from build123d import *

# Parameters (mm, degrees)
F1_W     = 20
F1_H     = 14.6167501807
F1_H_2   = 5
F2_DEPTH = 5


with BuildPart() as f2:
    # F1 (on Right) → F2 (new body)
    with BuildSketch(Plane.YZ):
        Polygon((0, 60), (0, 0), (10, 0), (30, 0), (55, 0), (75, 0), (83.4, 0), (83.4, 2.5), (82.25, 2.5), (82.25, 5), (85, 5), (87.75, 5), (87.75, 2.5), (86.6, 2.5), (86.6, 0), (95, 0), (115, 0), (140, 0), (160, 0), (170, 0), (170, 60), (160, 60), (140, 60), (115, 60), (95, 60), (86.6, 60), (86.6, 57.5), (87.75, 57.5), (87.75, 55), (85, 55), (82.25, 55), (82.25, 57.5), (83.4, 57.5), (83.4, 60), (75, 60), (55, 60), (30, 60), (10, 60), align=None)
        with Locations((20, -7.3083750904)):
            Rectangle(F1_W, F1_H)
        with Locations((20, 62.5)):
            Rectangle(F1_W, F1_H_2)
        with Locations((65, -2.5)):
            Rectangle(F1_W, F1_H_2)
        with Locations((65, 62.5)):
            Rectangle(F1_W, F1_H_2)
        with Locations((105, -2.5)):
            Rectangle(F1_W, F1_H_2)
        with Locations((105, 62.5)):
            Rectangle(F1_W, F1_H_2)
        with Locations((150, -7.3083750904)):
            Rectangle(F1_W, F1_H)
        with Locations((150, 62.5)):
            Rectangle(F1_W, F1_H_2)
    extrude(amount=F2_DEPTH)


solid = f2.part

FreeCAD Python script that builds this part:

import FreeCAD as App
import Part
import Sketcher
from FreeCAD import Vector
Q = App.Units.Quantity

doc = App.newDocument("Part")
body = doc.addObject("PartDesign::Body", "Body")

# Sketch on YZ plane
sketch1 = body.newObject("Sketcher::SketchObject", "Sketch")
sketch1.AttachmentSupport = (doc.getObject("YZ_Plane"), [""])
sketch1.MapMode = "FlatFace"
sketch1.addGeometry(Part.LineSegment(Vector(0, 60, 0), Vector(0, 0, 0)), False)
sketch1.addGeometry(Part.LineSegment(Vector(0, 0, 0), Vector(10, 0, 0)), False)
sketch1.addGeometry(Part.LineSegment(Vector(10, 0, 0), Vector(10, -14.6, 0)), False)
sketch1.addGeometry(Part.LineSegment(Vector(10, -14.6, 0), Vector(30, -14.6, 0)), False)
sketch1.addGeometry(Part.LineSegment(Vector(30, -14.6, 0), Vector(30, 0, 0)), False)
sketch1.addGeometry(Part.LineSegment(Vector(30, 0, 0), Vector(55, 0, 0)), False)
sketch1.addGeometry(Part.LineSegment(Vector(55, 0, 0), Vector(55, -5, 0)), False)
sketch1.addGeometry(Part.LineSegment(Vector(55, -5, 0), Vector(75, -5, 0)), False)
sketch1.addGeometry(Part.LineSegment(Vector(75, -5, 0), Vector(75, 0, 0)), False)
sketch1.addGeometry(Part.LineSegment(Vector(75, 0, 0), Vector(83.4, 0, 0)), False)
sketch1.addGeometry(Part.LineSegment(Vector(83.4, 0, 0), Vector(83.4, 2.5, 0)), False)
sketch1.addGeometry(Part.LineSegment(Vector(83.4, 2.5, 0), Vector(82.2, 2.5, 0)), False)
sketch1.addGeometry(Part.LineSegment(Vector(82.2, 2.5, 0), Vector(82.2, 5, 0)), False)
sketch1.addGeometry(Part.LineSegment(Vector(82.2, 5, 0), Vector(87.8, 5, 0)), False)
sketch1.addGeometry(Part.LineSegment(Vector(87.8, 5, 0), Vector(87.8, 2.5, 0)), False)
sketch1.addGeometry(Part.LineSegment(Vector(87.8, 2.5, 0), Vector(86.6, 2.5, 0)), False)
sketch1.addGeometry(Part.LineSegment(Vector(86.6, 2.5, 0), Vector(86.6, 0, 0)), False)
sketch1.addGeometry(Part.LineSegment(Vector(86.6, 0, 0), Vector(95, 0, 0)), False)
sketch1.addGeometry(Part.LineSegment(Vector(95, 0, 0), Vector(95, -5, 0)), False)
sketch1.addGeometry(Part.LineSegment(Vector(95, -5, 0), Vector(115, -5, 0)), False)
sketch1.addGeometry(Part.LineSegment(Vector(115, -5, 0), Vector(115, 0, 0)), False)
sketch1.addGeometry(Part.LineSegment(Vector(115, 0, 0), Vector(140, 0, 0)), False)
sketch1.addGeometry(Part.LineSegment(Vector(140, 0, 0), Vector(140, -14.6, 0)), False)
sketch1.addGeometry(Part.LineSegment(Vector(140, -14.6, 0), Vector(160, -14.6, 0)), False)
sketch1.addGeometry(Part.LineSegment(Vector(160, -14.6, 0), Vector(160, 0, 0)), False)
sketch1.addGeometry(Part.LineSegment(Vector(160, 0, 0), Vector(170, 0, 0)), False)
sketch1.addGeometry(Part.LineSegment(Vector(170, 0, 0), Vector(170, 60, 0)), False)
sketch1.addGeometry(Part.LineSegment(Vector(170, 60, 0), Vector(160, 60, 0)), False)
sketch1.addGeometry(Part.LineSegment(Vector(160, 60, 0), Vector(160, 65, 0)), False)
sketch1.addGeometry(Part.LineSegment(Vector(160, 65, 0), Vector(140, 65, 0)), False)
sketch1.addGeometry(Part.LineSegment(Vector(140, 65, 0), Vector(140, 60, 0)), False)
sketch1.addGeometry(Part.LineSegment(Vector(140, 60, 0), Vector(115, 60, 0)), False)
sketch1.addGeometry(Part.LineSegment(Vector(115, 60, 0), Vector(115, 65, 0)), False)
sketch1.addGeometry(Part.LineSegment(Vector(115, 65, 0), Vector(95, 65, 0)), False)
sketch1.addGeometry(Part.LineSegment(Vector(95, 65, 0), Vector(95, 60, 0)), False)
sketch1.addGeometry(Part.LineSegment(Vector(95, 60, 0), Vector(86.6, 60, 0)), False)
sketch1.addGeometry(Part.LineSegment(Vector(86.6, 60, 0), Vector(86.6, 57.5, 0)), False)
sketch1.addGeometry(Part.LineSegment(Vector(86.6, 57.5, 0), Vector(87.8, 57.5, 0)), False)
sketch1.addGeometry(Part.LineSegment(Vector(87.8, 57.5, 0), Vector(87.8, 55, 0)), False)
sketch1.addGeometry(Part.LineSegment(Vector(87.8, 55, 0), Vector(82.2, 55, 0)), False)
sketch1.addGeometry(Part.LineSegment(Vector(82.2, 55, 0), Vector(82.2, 57.5, 0)), False)
sketch1.addGeometry(Part.LineSegment(Vector(82.2, 57.5, 0), Vector(83.4, 57.5, 0)), False)
sketch1.addGeometry(Part.LineSegment(Vector(83.4, 57.5, 0), Vector(83.4, 60, 0)), False)
sketch1.addGeometry(Part.LineSegment(Vector(83.4, 60, 0), Vector(75, 60, 0)), False)
sketch1.addGeometry(Part.LineSegment(Vector(75, 60, 0), Vector(75, 65, 0)), False)
sketch1.addGeometry(Part.LineSegment(Vector(75, 65, 0), Vector(55, 65, 0)), False)
sketch1.addGeometry(Part.LineSegment(Vector(55, 65, 0), Vector(55, 60, 0)), False)
sketch1.addGeometry(Part.LineSegment(Vector(55, 60, 0), Vector(30, 60, 0)), False)
sketch1.addGeometry(Part.LineSegment(Vector(30, 60, 0), Vector(30, 65, 0)), False)
sketch1.addGeometry(Part.LineSegment(Vector(30, 65, 0), Vector(10, 65, 0)), False)
sketch1.addGeometry(Part.LineSegment(Vector(10, 65, 0), Vector(10, 60, 0)), False)
sketch1.addGeometry(Part.LineSegment(Vector(10, 60, 0), Vector(0, 60, 0)), False)
sketch1.addConstraint(Sketcher.Constraint("Coincident", 0, 2, 1, 1))
sketch1.addConstraint(Sketcher.Constraint("Coincident", 1, 2, 2, 1))
sketch1.addConstraint(Sketcher.Constraint("Coincident", 2, 2, 3, 1))
sketch1.addConstraint(Sketcher.Constraint("Coincident", 3, 2, 4, 1))
sketch1.addConstraint(Sketcher.Constraint("Coincident", 4, 2, 5, 1))
sketch1.addConstraint(Sketcher.Constraint("Coincident", 5, 2, 6, 1))
sketch1.addConstraint(Sketcher.Constraint("Coincident", 6, 2, 7, 1))
sketch1.addConstraint(Sketcher.Constraint("Coincident", 7, 2, 8, 1))
sketch1.addConstraint(Sketcher.Constraint("Coincident", 8, 2, 9, 1))
sketch1.addConstraint(Sketcher.Constraint("Coincident", 9, 2, 10, 1))
sketch1.addConstraint(Sketcher.Constraint("Coincident", 10, 2, 11, 1))
sketch1.addConstraint(Sketcher.Constraint("Coincident", 11, 2, 12, 1))
sketch1.addConstraint(Sketcher.Constraint("Coincident", 12, 2, 13, 1))
sketch1.addConstraint(Sketcher.Constraint("Coincident", 13, 2, 14, 1))
sketch1.addConstraint(Sketcher.Constraint("Coincident", 14, 2, 15, 1))
sketch1.addConstraint(Sketcher.Constraint("Coincident", 15, 2, 16, 1))
sketch1.addConstraint(Sketcher.Constraint("Coincident", 16, 2, 17, 1))
sketch1.addConstraint(Sketcher.Constraint("Coincident", 17, 2, 18, 1))
sketch1.addConstraint(Sketcher.Constraint("Coincident", 18, 2, 19, 1))
sketch1.addConstraint(Sketcher.Constraint("Coincident", 19, 2, 20, 1))
sketch1.addConstraint(Sketcher.Constraint("Coincident", 20, 2, 21, 1))
sketch1.addConstraint(Sketcher.Constraint("Coincident", 21, 2, 22, 1))
sketch1.addConstraint(Sketcher.Constraint("Coincident", 22, 2, 23, 1))
sketch1.addConstraint(Sketcher.Constraint("Coincident", 23, 2, 24, 1))
sketch1.addConstraint(Sketcher.Constraint("Coincident", 24, 2, 25, 1))
sketch1.addConstraint(Sketcher.Constraint("Coincident", 25, 2, 26, 1))
sketch1.addConstraint(Sketcher.Constraint("Coincident", 26, 2, 27, 1))
sketch1.addConstraint(Sketcher.Constraint("Coincident", 27, 2, 28, 1))
sketch1.addConstraint(Sketcher.Constraint("Coincident", 28, 2, 29, 1))
sketch1.addConstraint(Sketcher.Constraint("Coincident", 29, 2, 30, 1))
sketch1.addConstraint(Sketcher.Constraint("Coincident", 30, 2, 31, 1))
sketch1.addConstraint(Sketcher.Constraint("Coincident", 31, 2, 32, 1))
sketch1.addConstraint(Sketcher.Constraint("Coincident", 32, 2, 33, 1))
sketch1.addConstraint(Sketcher.Constraint("Coincident", 33, 2, 34, 1))
sketch1.addConstraint(Sketcher.Constraint("Coincident", 34, 2, 35, 1))
sketch1.addConstraint(Sketcher.Constraint("Coincident", 35, 2, 36, 1))
sketch1.addConstraint(Sketcher.Constraint("Coincident", 36, 2, 37, 1))
sketch1.addConstraint(Sketcher.Constraint("Coincident", 37, 2, 38, 1))
sketch1.addConstraint(Sketcher.Constraint("Coincident", 38, 2, 39, 1))
sketch1.addConstraint(Sketcher.Constraint("Coincident", 39, 2, 40, 1))
sketch1.addConstraint(Sketcher.Constraint("Coincident", 40, 2, 41, 1))
sketch1.addConstraint(Sketcher.Constraint("Coincident", 41, 2, 42, 1))
sketch1.addConstraint(Sketcher.Constraint("Coincident", 42, 2, 43, 1))
sketch1.addConstraint(Sketcher.Constraint("Coincident", 43, 2, 44, 1))
sketch1.addConstraint(Sketcher.Constraint("Coincident", 44, 2, 45, 1))
sketch1.addConstraint(Sketcher.Constraint("Coincident", 45, 2, 46, 1))
sketch1.addConstraint(Sketcher.Constraint("Coincident", 46, 2, 47, 1))
sketch1.addConstraint(Sketcher.Constraint("Coincident", 47, 2, 48, 1))
sketch1.addConstraint(Sketcher.Constraint("Coincident", 48, 2, 49, 1))
sketch1.addConstraint(Sketcher.Constraint("Coincident", 49, 2, 50, 1))
sketch1.addConstraint(Sketcher.Constraint("Coincident", 50, 2, 51, 1))
sketch1.addConstraint(Sketcher.Constraint("Coincident", 51, 2, 0, 1))
sketch1.addConstraint(Sketcher.Constraint("Vertical", 0))
sketch1.addConstraint(Sketcher.Constraint("Horizontal", 1))
sketch1.addConstraint(Sketcher.Constraint("Vertical", 2))
sketch1.addConstraint(Sketcher.Constraint("Horizontal", 3))
sketch1.addConstraint(Sketcher.Constraint("Vertical", 4))
sketch1.addConstraint(Sketcher.Constraint("Horizontal", 5))
sketch1.addConstraint(Sketcher.Constraint("Vertical", 6))
sketch1.addConstraint(Sketcher.Constraint("Horizontal", 7))
sketch1.addConstraint(Sketcher.Constraint("Vertical", 8))
sketch1.addConstraint(Sketcher.Constraint("Horizontal", 9))
sketch1.addConstraint(Sketcher.Constraint("Vertical", 10))
sketch1.addConstraint(Sketcher.Constraint("Horizontal", 11))
sketch1.addConstraint(Sketcher.Constraint("Vertical", 12))
sketch1.addConstraint(Sketcher.Constraint("Horizontal", 13))
sketch1.addConstraint(Sketcher.Constraint("Vertical", 14))
sketch1.addConstraint(Sketcher.Constraint("Horizontal", 15))
sketch1.addConstraint(Sketcher.Constraint("Vertical", 16))
sketch1.addConstraint(Sketcher.Constraint("Horizontal", 17))
sketch1.addConstraint(Sketcher.Constraint("Vertical", 18))
sketch1.addConstraint(Sketcher.Constraint("Horizontal", 19))
sketch1.addConstraint(Sketcher.Constraint("Vertical", 20))
sketch1.addConstraint(Sketcher.Constraint("Horizontal", 21))
sketch1.addConstraint(Sketcher.Constraint("Vertical", 22))
sketch1.addConstraint(Sketcher.Constraint("Horizontal", 23))
sketch1.addConstraint(Sketcher.Constraint("Vertical", 24))
sketch1.addConstraint(Sketcher.Constraint("Horizontal", 25))
sketch1.addConstraint(Sketcher.Constraint("Vertical", 26))
sketch1.addConstraint(Sketcher.Constraint("Horizontal", 27))
sketch1.addConstraint(Sketcher.Constraint("Vertical", 28))
sketch1.addConstraint(Sketcher.Constraint("Horizontal", 29))
sketch1.addConstraint(Sketcher.Constraint("Vertical", 30))
sketch1.addConstraint(Sketcher.Constraint("Horizontal", 31))
sketch1.addConstraint(Sketcher.Constraint("Vertical", 32))
sketch1.addConstraint(Sketcher.Constraint("Horizontal", 33))
sketch1.addConstraint(Sketcher.Constraint("Vertical", 34))
sketch1.addConstraint(Sketcher.Constraint("Horizontal", 35))
sketch1.addConstraint(Sketcher.Constraint("Vertical", 36))
sketch1.addConstraint(Sketcher.Constraint("Horizontal", 37))
sketch1.addConstraint(Sketcher.Constraint("Vertical", 38))
sketch1.addConstraint(Sketcher.Constraint("Horizontal", 39))
sketch1.addConstraint(Sketcher.Constraint("Vertical", 40))
sketch1.addConstraint(Sketcher.Constraint("Horizontal", 41))
sketch1.addConstraint(Sketcher.Constraint("Vertical", 42))
sketch1.addConstraint(Sketcher.Constraint("Horizontal", 43))
sketch1.addConstraint(Sketcher.Constraint("Vertical", 44))
sketch1.addConstraint(Sketcher.Constraint("Horizontal", 45))
sketch1.addConstraint(Sketcher.Constraint("Vertical", 46))
sketch1.addConstraint(Sketcher.Constraint("Horizontal", 47))
sketch1.addConstraint(Sketcher.Constraint("Vertical", 48))
sketch1.addConstraint(Sketcher.Constraint("Horizontal", 49))
sketch1.addConstraint(Sketcher.Constraint("Vertical", 50))
sketch1.addConstraint(Sketcher.Constraint("Horizontal", 51))
sketch1.addConstraint(Sketcher.Constraint("Coincident", 0, 2, -1, 1))
sketch1.addConstraint(Sketcher.Constraint("PointOnObject", 4, 2, -1))
sketch1.addConstraint(Sketcher.Constraint("PointOnObject", 8, 2, -1))
sketch1.addConstraint(Sketcher.Constraint("PointOnObject", 16, 2, -1))
sketch1.addConstraint(Sketcher.Constraint("PointOnObject", 20, 2, -1))
sketch1.addConstraint(Sketcher.Constraint("PointOnObject", 24, 2, -1))
sketch1.addConstraint(Sketcher.Constraint("Horizontal", 11, 2, 14, 2))
sketch1.addConstraint(Sketcher.Constraint("Horizontal", 7, 2, 18, 2))
sketch1.addConstraint(Sketcher.Constraint("Horizontal", 3, 2, 22, 2))
sketch1.addConstraint(Sketcher.Constraint("Horizontal", 27, 2, 30, 2))
sketch1.addConstraint(Sketcher.Constraint("Horizontal", 29, 2, 32, 2))
sketch1.addConstraint(Sketcher.Constraint("Horizontal", 31, 2, 34, 2))
sketch1.addConstraint(Sketcher.Constraint("Horizontal", 37, 2, 40, 2))
sketch1.addConstraint(Sketcher.Constraint("Horizontal", 35, 2, 42, 2))
sketch1.addConstraint(Sketcher.Constraint("Horizontal", 33, 2, 44, 2))
sketch1.addConstraint(Sketcher.Constraint("Horizontal", 43, 2, 46, 2))
sketch1.addConstraint(Sketcher.Constraint("Horizontal", 45, 2, 48, 2))
sketch1.addConstraint(Sketcher.Constraint("Horizontal", 47, 2, 50, 2))
sketch1.addConstraint(Sketcher.Constraint("Vertical", 24, 2, 27, 2))
sketch1.addConstraint(Sketcher.Constraint("Vertical", 22, 2, 29, 2))
sketch1.addConstraint(Sketcher.Constraint("Vertical", 20, 2, 31, 2))
sketch1.addConstraint(Sketcher.Constraint("Vertical", 18, 2, 33, 2))
sketch1.addConstraint(Sketcher.Constraint("Vertical", 16, 2, 35, 2))
sketch1.addConstraint(Sketcher.Constraint("Vertical", 14, 2, 37, 2))
sketch1.addConstraint(Sketcher.Constraint("Vertical", 12, 2, 39, 2))
sketch1.addConstraint(Sketcher.Constraint("Vertical", 10, 2, 41, 2))
sketch1.addConstraint(Sketcher.Constraint("Vertical", 8, 2, 43, 2))
sketch1.addConstraint(Sketcher.Constraint("Vertical", 6, 2, 45, 2))
sketch1.addConstraint(Sketcher.Constraint("Vertical", 4, 2, 47, 2))
sketch1.addConstraint(Sketcher.Constraint("Vertical", 2, 2, 49, 2))
sketch1.addConstraint(Sketcher.Constraint("Equal", 3, 7))
sketch1.addConstraint(Sketcher.Constraint("Equal", 11, 15))
sketch1.addConstraint(Sketcher.Constraint("Equal", 9, 17))
sketch1.addConstraint(Sketcher.Constraint("Equal", 7, 19))
sketch1.addConstraint(Sketcher.Constraint("Equal", 5, 21))
sketch1.addConstraint(Sketcher.Constraint("Equal", 19, 23))
sketch1.addConstraint(Sketcher.Constraint("Equal", 1, 25))
sketch1.addConstraint(Sketcher.Constraint("Equal", 10, 12))
sketch1.addConstraint(Sketcher.Constraint("Equal", 20, 28))
sketch1.addConstraint(Sketcher.Constraint("Equal", 16, 36))
sketch1.addConstraint(Sketcher.Constraint("Equal", 36, 38))
sketch1.addConstraint(Sketcher.Constraint("DistanceX", 1, 1, 1, 2, Q("10 mm")))
sketch1.addConstraint(Sketcher.Constraint("DistanceX", 3, 1, 3, 2, Q("20 mm")))
sketch1.addConstraint(Sketcher.Constraint("DistanceX", 5, 1, 5, 2, Q("25 mm")))
sketch1.addConstraint(Sketcher.Constraint("DistanceY", 0, 2, 0, 1, Q("60 mm")))
sketch1.addConstraint(Sketcher.Constraint("DistanceY", 6, 2, 6, 1, Q("5 mm")))
sketch1.addConstraint(Sketcher.Constraint("DistanceX", 9, 1, 9, 2, Q("8.4 mm")))
sketch1.addConstraint(Sketcher.Constraint("DistanceX", 13, 1, 13, 2, Q("5.5 mm")))
sketch1.addConstraint(Sketcher.Constraint("DistanceY", 10, 1, 10, 2, Q("2.5 mm")))
sketch1.addConstraint(Sketcher.Constraint("DistanceX", -1, 1, 17, 2, Q("95 mm")))
sketch1.addConstraint(Sketcher.Constraint("DistanceY", 2, 2, 2, 1, Q("14.61675 mm")))
pad1 = body.newObject("PartDesign::Pad", "Pad")
pad1.Profile = sketch1
pad1.Length = 5

doc.recompute()
